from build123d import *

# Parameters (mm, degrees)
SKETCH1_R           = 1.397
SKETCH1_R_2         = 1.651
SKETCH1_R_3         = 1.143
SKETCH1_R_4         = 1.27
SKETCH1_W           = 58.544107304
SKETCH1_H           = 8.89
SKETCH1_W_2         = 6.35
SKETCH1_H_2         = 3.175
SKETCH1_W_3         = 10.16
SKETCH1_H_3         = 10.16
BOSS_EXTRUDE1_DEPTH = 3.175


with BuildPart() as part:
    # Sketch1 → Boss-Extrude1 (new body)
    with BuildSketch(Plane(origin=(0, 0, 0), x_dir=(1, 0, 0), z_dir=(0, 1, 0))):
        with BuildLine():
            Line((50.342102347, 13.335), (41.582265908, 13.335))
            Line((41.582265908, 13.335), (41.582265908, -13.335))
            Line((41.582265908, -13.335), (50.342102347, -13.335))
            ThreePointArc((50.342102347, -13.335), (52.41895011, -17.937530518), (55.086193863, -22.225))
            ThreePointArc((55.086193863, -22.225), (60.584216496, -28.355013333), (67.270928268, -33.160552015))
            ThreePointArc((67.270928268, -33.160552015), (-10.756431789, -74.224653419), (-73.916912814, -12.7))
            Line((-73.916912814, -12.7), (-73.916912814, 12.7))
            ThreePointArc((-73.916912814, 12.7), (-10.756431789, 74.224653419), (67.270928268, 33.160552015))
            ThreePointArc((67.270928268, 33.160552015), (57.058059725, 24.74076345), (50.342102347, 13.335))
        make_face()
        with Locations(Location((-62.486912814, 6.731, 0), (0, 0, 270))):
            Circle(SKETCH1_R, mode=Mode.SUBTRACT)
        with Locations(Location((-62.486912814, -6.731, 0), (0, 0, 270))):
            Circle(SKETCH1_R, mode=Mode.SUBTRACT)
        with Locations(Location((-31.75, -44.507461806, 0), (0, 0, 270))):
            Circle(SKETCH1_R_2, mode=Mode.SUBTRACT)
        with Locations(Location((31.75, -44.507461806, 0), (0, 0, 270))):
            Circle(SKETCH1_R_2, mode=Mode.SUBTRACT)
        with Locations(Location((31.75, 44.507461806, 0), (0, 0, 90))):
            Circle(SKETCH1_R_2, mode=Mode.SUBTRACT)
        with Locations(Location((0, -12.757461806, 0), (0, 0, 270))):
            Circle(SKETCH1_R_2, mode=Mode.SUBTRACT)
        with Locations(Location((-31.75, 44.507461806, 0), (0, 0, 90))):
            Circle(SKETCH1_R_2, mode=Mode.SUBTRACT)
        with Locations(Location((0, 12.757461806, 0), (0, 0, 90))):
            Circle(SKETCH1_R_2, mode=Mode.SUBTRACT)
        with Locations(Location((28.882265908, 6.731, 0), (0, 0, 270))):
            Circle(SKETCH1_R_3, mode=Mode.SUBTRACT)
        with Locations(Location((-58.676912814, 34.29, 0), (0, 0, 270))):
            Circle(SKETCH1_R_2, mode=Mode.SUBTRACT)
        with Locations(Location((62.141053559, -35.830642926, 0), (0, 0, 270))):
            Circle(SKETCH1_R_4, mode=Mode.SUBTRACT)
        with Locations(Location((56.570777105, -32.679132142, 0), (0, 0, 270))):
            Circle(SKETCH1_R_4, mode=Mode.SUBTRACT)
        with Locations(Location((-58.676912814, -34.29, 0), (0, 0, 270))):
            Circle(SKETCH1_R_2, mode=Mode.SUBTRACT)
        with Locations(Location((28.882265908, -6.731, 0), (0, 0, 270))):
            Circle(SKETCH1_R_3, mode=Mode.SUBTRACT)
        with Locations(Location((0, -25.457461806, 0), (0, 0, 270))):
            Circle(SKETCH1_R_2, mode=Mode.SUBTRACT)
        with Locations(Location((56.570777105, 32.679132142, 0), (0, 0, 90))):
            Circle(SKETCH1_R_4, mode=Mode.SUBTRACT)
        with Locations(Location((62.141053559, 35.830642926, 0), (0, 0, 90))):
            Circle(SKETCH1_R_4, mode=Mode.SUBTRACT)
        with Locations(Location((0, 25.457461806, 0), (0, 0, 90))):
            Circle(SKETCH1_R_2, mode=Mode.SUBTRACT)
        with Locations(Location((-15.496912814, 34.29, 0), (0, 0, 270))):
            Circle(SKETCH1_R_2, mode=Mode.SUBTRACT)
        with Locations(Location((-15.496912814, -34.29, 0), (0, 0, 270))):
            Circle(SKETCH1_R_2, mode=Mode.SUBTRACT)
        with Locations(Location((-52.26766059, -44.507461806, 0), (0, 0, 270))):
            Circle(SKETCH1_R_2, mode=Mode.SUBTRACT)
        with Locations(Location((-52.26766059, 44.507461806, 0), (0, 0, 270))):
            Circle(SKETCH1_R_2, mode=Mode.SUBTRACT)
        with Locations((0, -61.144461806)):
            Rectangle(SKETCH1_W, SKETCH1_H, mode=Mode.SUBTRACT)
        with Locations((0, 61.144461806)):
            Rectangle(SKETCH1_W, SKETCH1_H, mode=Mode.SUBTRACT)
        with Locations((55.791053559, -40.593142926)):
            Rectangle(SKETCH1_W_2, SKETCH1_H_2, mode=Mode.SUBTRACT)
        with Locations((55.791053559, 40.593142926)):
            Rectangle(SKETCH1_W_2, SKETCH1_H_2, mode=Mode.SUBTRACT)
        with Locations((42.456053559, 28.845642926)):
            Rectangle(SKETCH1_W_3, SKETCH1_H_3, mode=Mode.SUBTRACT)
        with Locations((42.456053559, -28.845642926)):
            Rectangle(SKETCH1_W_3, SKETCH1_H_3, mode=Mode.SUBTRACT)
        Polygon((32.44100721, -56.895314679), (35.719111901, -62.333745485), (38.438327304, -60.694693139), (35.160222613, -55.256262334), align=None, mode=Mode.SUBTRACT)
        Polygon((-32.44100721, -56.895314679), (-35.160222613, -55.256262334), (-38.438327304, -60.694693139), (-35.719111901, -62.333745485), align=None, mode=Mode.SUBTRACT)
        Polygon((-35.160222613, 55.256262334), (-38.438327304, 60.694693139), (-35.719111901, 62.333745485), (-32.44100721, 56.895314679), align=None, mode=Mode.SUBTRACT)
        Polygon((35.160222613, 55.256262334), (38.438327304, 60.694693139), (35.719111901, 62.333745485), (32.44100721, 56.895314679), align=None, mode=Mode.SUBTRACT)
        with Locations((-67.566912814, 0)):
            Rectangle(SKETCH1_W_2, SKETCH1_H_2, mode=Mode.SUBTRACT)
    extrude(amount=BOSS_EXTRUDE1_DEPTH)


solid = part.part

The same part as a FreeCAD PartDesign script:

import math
import FreeCAD as App
import Part
import Sketcher

V = App.Vector
Q = App.Units.Quantity


def add_polygon(sketch, points):
    """Adds a closed chain of lines whose ends are joined by coincident constraints."""
    first, n = sketch.GeometryCount, len(points)
    for a, b in zip(points, points[1:] + points[:1]):
        sketch.addGeometry(Part.LineSegment(App.Vector(*a, 0), App.Vector(*b, 0)), False)
    for i in range(n):
        sketch.addConstraint(Sketcher.Constraint("Coincident", first + i, 2, first + (i + 1) % n, 1))

doc = App.newDocument("Part")
body = doc.addObject("PartDesign::Body", "Body")

sketch1 = body.newObject("Sketcher::SketchObject", "Sketch")
sketch1.AttachmentSupport = (doc.getObject("XZ_Plane"), [""])
sketch1.MapMode = "FlatFace"
sketch1.addGeometry(Part.LineSegment(V(41.6, -13.3, 0), V(50.3, -13.3, 0)), False)
sketch1.addGeometry(Part.ArcOfCircle(Part.Circle(V(86, 0, 0), V(0, 0, 1), 38.1), math.radians(-160), math.radians(-119)), False)
sketch1.addGeometry(Part.ArcOfCircle(Part.Circle(V(0, 0, 0), V(0, 0, 1), 75), math.radians(-170), math.radians(-26)), False)
sketch1.addGeometry(Part.LineSegment(V(-73.9, -12.7, 0), V(-73.9, 12.7, 0)), False)
sketch1.addGeometry(Part.ArcOfCircle(Part.Circle(V(0, 0, 0), V(0, 0, 1), 75), math.radians(26), math.radians(170)), False)
sketch1.addGeometry(Part.ArcOfCircle(Part.Circle(V(86, 0, 0), V(0, 0, 1), 38.1), math.radians(119), math.radians(144)), False)
sketch1.addGeometry(Part.ArcOfCircle(Part.Circle(V(86, 0, 0), V(0, 0, 1), 38.1), math.radians(144.31), math.radians(159.51)), False)
sketch1.addGeometry(Part.LineSegment(V(50.3, 13.3, 0), V(41.6, 13.3, 0)), False)
sketch1.addGeometry(Part.LineSegment(V(41.6, 13.3, 0), V(41.6, -13.3, 0)), False)
add_polygon(sketch1, [(32.4, 56.9), (35.2, 55.3), (38.4, 60.7), (35.7, 62.3)])
add_polygon(sketch1, [(52.6, 42.2), (52.6, 39), (59, 39), (59, 42.2)])
sketch1.addGeometry(Part.Circle(V(62.1, 35.8, 0), V(0, 0, 1), 1.3), False)
sketch1.addGeometry(Part.Circle(V(31.8, 44.5, 0), V(0, 0, 1), 1.7), False)
add_polygon(sketch1, [(-29.3, 65.6), (-29.3, 56.7), (29.3, 56.7), (29.3, 65.6)])
sketch1.addGeometry(Part.Circle(V(56.6, 32.7, 0), V(0, 0, 1), 1.3), False)
add_polygon(sketch1, [(37.4, 33.9), (37.4, 23.8), (47.5, 23.8), (47.5, 33.9)])
sketch1.addGeometry(Part.Circle(V(0, 25.5, 0), V(0, 0, 1), 1.7), False)
sketch1.addGeometry(Part.Circle(V(28.9, 6.7, 0), V(0, 0, 1), 1.1), False)
sketch1.addGeometry(Part.Circle(V(0, 12.8, 0), V(0, 0, 1), 1.7), False)
add_polygon(sketch1, [(-32.4, 56.9), (-35.7, 62.3), (-38.4, 60.7), (-35.2, 55.3)])
sketch1.addGeometry(Part.Circle(V(-15.5, 34.3, 0), V(0, 0, 1), 1.7), False)
sketch1.addGeometry(Part.Circle(V(-31.8, 44.5, 0), V(0, 0, 1), 1.7), False)
sketch1.addGeometry(Part.Circle(V(-52.3, 44.5, 0), V(0, 0, 1), 1.7), False)
sketch1.addGeometry(Part.Circle(V(-58.7, 34.3, 0), V(0, 0, 1), 1.7), False)
sketch1.addGeometry(Part.Circle(V(-62.5, 6.7, 0), V(0, 0, 1), 1.4), False)
sketch1.addGeometry(Part.Circle(V(56.6, -32.7, 0), V(0, 0, 1), 1.3), False)
add_polygon(sketch1, [(37.4, -23.8), (37.4, -33.9), (47.5, -33.9), (47.5, -23.8)])
sketch1.addGeometry(Part.Circle(V(28.9, -6.7, 0), V(0, 0, 1), 1.1), False)
sketch1.addGeometry(Part.Circle(V(0, -12.8, 0), V(0, 0, 1), 1.7), False)
sketch1.addGeometry(Part.Circle(V(0, -25.5, 0), V(0, 0, 1), 1.7), False)
sketch1.addGeometry(Part.Circle(V(62.1, -35.8, 0), V(0, 0, 1), 1.3), False)
add_polygon(sketch1, [(52.6, -39), (52.6, -42.2), (59, -42.2), (59, -39)])
sketch1.addGeometry(Part.Circle(V(31.8, -44.5, 0), V(0, 0, 1), 1.7), False)
add_polygon(sketch1, [(35.2, -55.3), (32.4, -56.9), (35.7, -62.3), (38.4, -60.7)])
add_polygon(sketch1, [(-29.3, -56.7), (-29.3, -65.6), (29.3, -65.6), (29.3, -56.7)])
add_polygon(sketch1, [(-70.7, 1.6), (-70.7, -1.6), (-64.4, -1.6), (-64.4, 1.6)])
sketch1.addGeometry(Part.Circle(V(-62.5, -6.7, 0), V(0, 0, 1), 1.4), False)
sketch1.addGeometry(Part.Circle(V(-15.5, -34.3, 0), V(0, 0, 1), 1.7), False)
sketch1.addGeometry(Part.Circle(V(-31.8, -44.5, 0), V(0, 0, 1), 1.7), False)
add_polygon(sketch1, [(-35.2, -55.3), (-38.4, -60.7), (-35.7, -62.3), (-32.4, -56.9)])
sketch1.addGeometry(Part.Circle(V(-52.3, -44.5, 0), V(0, 0, 1), 1.7), False)
sketch1.addGeometry(Part.Circle(V(-58.7, -34.3, 0), V(0, 0, 1), 1.7), False)
sketch1.addConstraint([
    Sketcher.Constraint("Coincident", 0, 2, 1, 1),
    Sketcher.Constraint("Coincident", 1, 2, 2, 2),
    Sketcher.Constraint("Coincident", 2, 1, 3, 1),
    Sketcher.Constraint("Coincident", 3, 2, 4, 2),
    Sketcher.Constraint("Coincident", 4, 1, 5, 1),
    Sketcher.Constraint("Tangent", 5, 2, 6, 1),
    Sketcher.Constraint("Coincident", 6, 2, 7, 1),
    Sketcher.Constraint("Coincident", 7, 2, 8, 1),
    Sketcher.Constraint("Coincident", 8, 2, 0, 1),
    Sketcher.Constraint("Horizontal", 0),
    Sketcher.Constraint("Vertical", 3),
    Sketcher.Constraint("Horizontal", 7),
    Sketcher.Constraint("Vertical", 8),
    Sketcher.Constraint("Vertical", 13),
    Sketcher.Constraint("Horizontal", 14),
    Sketcher.Constraint("Vertical", 15),
    Sketcher.Constraint("Horizontal", 16),
    Sketcher.Constraint("Vertical", 19),
    Sketcher.Constraint("Horizontal", 20),
    Sketcher.Constraint("Vertical", 21),
    Sketcher.Constraint("Horizontal", 22),
    Sketcher.Constraint("Vertical", 24),
    Sketcher.Constraint("Horizontal", 25),
    Sketcher.Constraint("Vertical", 26),
    Sketcher.Constraint("Horizontal", 27),
    Sketcher.Constraint("Vertical", 41),
    Sketcher.Constraint("Horizontal", 42),
    Sketcher.Constraint("Vertical", 43),
    Sketcher.Constraint("Horizontal", 44),
    Sketcher.Constraint("Vertical", 49),
    Sketcher.Constraint("Horizontal", 50),
    Sketcher.Constraint("Vertical", 51),
    Sketcher.Constraint("Horizontal", 52),
    Sketcher.Constraint("Vertical", 58),
    Sketcher.Constraint("Horizontal", 59),
    Sketcher.Constraint("Vertical", 60),
    Sketcher.Constraint("Horizontal", 61),
    Sketcher.Constraint("Vertical", 62),
    Sketcher.Constraint("Horizontal", 63),
    Sketcher.Constraint("Vertical", 64),
    Sketcher.Constraint("Horizontal", 65),
    Sketcher.Constraint("Coincident", 2, 3, -1, 1),
    Sketcher.Constraint("Coincident", 4, 3, -1, 1),
    Sketcher.Constraint("Coincident", 5, 3, 1, 3),
    Sketcher.Constraint("Equal", 2, 4),
    Sketcher.Constraint("Equal", 1, 5),
    Sketcher.Constraint("Equal", 5, 6),
    Sketcher.Constraint("Equal", 17, 23),
    Sketcher.Constraint("Equal", 18, 28),
    Sketcher.Constraint("Equal", 28, 30),
    Sketcher.Constraint("Equal", 30, 35),
    Sketcher.Constraint("Equal", 35, 36),
    Sketcher.Constraint("Equal", 36, 37),
    Sketcher.Constraint("Equal", 37, 38),
    Sketcher.Constraint("Equal", 23, 40),
    Sketcher.Constraint("Equal", 29, 45),
    Sketcher.Constraint("Equal", 38, 46),
    Sketcher.Constraint("Equal", 46, 47),
    Sketcher.Constraint("Equal", 40, 48),
    Sketcher.Constraint("Equal", 47, 53),
    Sketcher.Constraint("Equal", 39, 66),
    Sketcher.Constraint("Equal", 53, 67),
    Sketcher.Constraint("Equal", 67, 68),
    Sketcher.Constraint("Equal", 68, 73),
    Sketcher.Constraint("Equal", 73, 74),
    Sketcher.Constraint("Symmetric", 30, 3, 46, 3, -1, 1),
    Sketcher.Constraint("Symmetric", 28, 3, 47, 3, -1, 1),
    Sketcher.Constraint("Symmetric", 36, 3, 53, 3, -1, 1),
    Sketcher.Constraint("Symmetric", 18, 3, 68, 3, -1, 1),
    Sketcher.Constraint("Symmetric", 34, 2, 54, 2, -1, 1),
    Sketcher.Constraint("Symmetric", 31, 2, 55, 2, -1, 1),
    Sketcher.Constraint("Symmetric", 32, 2, 56, 2, -1, 1),
    Sketcher.Constraint("Symmetric", 33, 2, 57, 2, -1, 1),
    Sketcher.Constraint("Symmetric", 21, 2, 58, 2, -1, 1),
    Sketcher.Constraint("Symmetric", 19, 2, 60, 2, -1, 1),
    Sketcher.Constraint("Symmetric", 10, 2, 69, 2, -1, 1),
    Sketcher.Constraint("Symmetric", 11, 2, 70, 2, -1, 1),
    Sketcher.Constraint("Symmetric", 12, 2, 71, 2, -1, 1),
    Sketcher.Constraint("Symmetric", 9, 2, 72, 2, -1, 1),
    Sketcher.Constraint("Symmetric", 18, 3, 36, 3, -2),
    Sketcher.Constraint("Symmetric", 11, 2, 31, 2, -2),
    Sketcher.Constraint("Symmetric", 10, 2, 32, 2, -2),
    Sketcher.Constraint("Symmetric", 9, 2, 33, 2, -2),
    Sketcher.Constraint("Symmetric", 12, 2, 34, 2, -2),
    Sketcher.Constraint("Symmetric", 23, 3, 40, 3, -1),
    Sketcher.Constraint("Symmetric", 29, 3, 45, 3, -1),
    Sketcher.Constraint("Symmetric", 17, 3, 48, 3, -1),
    Sketcher.Constraint("Symmetric", 39, 3, 66, 3, -1),
    Sketcher.Constraint("Symmetric", 35, 3, 67, 3, -1),
    Sketcher.Constraint("Symmetric", 37, 3, 73, 3, -1),
    Sketcher.Constraint("Symmetric", 38, 3, 74, 3, -1),
    Sketcher.Constraint("Symmetric", 0, 2, 6, 2, -1),
    Sketcher.Constraint("Symmetric", 27, 2, 41, 2, -1),
    Sketcher.Constraint("Symmetric", 25, 2, 43, 2, -1),
    Sketcher.Constraint("Symmetric", 16, 2, 49, 2, -1),
    Sketcher.Constraint("Symmetric", 14, 2, 51, 2, -1),
    Sketcher.Constraint("PointOnObject", 28, 3, -2),
    Sketcher.Constraint("PointOnObject", 30, 3, -2),
    Sketcher.Constraint("Perpendicular", 9, 10),
    Sketcher.Constraint("Perpendicular", 10, 11),
    Sketcher.Constraint("Perpendicular", 11, 12),
    Sketcher.Constraint("Horizontal", 36, 3, 37, 3),
    Sketcher.Constraint("Horizontal", 35, 3, 38, 3),
    Sketcher.Constraint("Horizontal", 29, 3, 39, 3),
    Sketcher.Constraint("Vertical", 22, 2, 58, 2),
    Sketcher.Constraint("Equal", 52, 63),
    Sketcher.Constraint("Equal", 44, 24),
    Sketcher.Constraint("Equal", 51, 62),
    Sketcher.Constraint("Diameter", 17, Q("0.1 in")),
    Sketcher.Constraint("Radius", 1, Q("1.5 in")),
    Sketcher.Constraint("Diameter", 18, Q("0.13 in")),
    Sketcher.Constraint("Diameter", 29, Q("0.09 in")),
    Sketcher.Constraint("Diameter", 39, Q("0.11 in")),
    Sketcher.Constraint("DistanceY", 3, 1, 3, 2, Q("1 in")),
    Sketcher.Constraint("DistanceX", 25, 1, 25, 2, Q("0.4 in")),
    Sketcher.Constraint("DistanceX", 14, 1, 14, 2, Q("0.25 in")),
    Sketcher.Constraint("DistanceY", 8, 2, 8, 1, Q("1.05 in")),
    Sketcher.Constraint("DistanceY", 19, 2, 19, 1, Q("0.35 in")),
    Sketcher.Constraint("Distance", 10, Q("0.25 in")),
    Sketcher.Constraint("DistanceY", 13, 2, 13, 1, Q("0.125 in")),
    Sketcher.Constraint("DistanceX", -1, 1, 18, 3, Q("1.25 in")),
    Sketcher.Constraint("DistanceY", -1, 1, 35, 3, Q("1.35 in")),
    Sketcher.Constraint("Radius", 2, Q("75 mm")),
    Sketcher.Constraint("Distance", 9, Q("0.125 in")),
    Sketcher.Constraint("DistanceY", -1, 1, 29, 3, Q("0.265 in")),
    Sketcher.Constraint("DistanceY", -1, 1, 5, 2, Q("0.875 in")),
    Sketcher.Constraint("DistanceY", 62, 2, -1, 1, Q("0.0625 in")),
    Sketcher.Constraint("DistanceX", 0, 1, 0, 2, Q("8.759836 mm")),
    Sketcher.Constraint("DistanceX", 20, 1, 20, 2, Q("58.544107 mm")),
    Sketcher.Constraint("DistanceY", -1, 1, 18, 3, Q("44.507462 mm")),
    Sketcher.Constraint("DistanceY", -1, 1, 28, 3, Q("25.457462 mm")),
    Sketcher.Constraint("DistanceY", -1, 1, 30, 3, Q("12.757462 mm")),
    Sketcher.Constraint("DistanceX", 37, 3, -1, 1, Q("52.267661 mm")),
    Sketcher.Constraint("DistanceX", -1, 1, 1, 2, Q("67.270928 mm")),
    Sketcher.Constraint("DistanceX", -1, 1, 11, 2, Q("35.719112 mm")),
    Sketcher.Constraint("DistanceY", -1, 1, 19, 2, Q("56.699462 mm")),
    Sketcher.Constraint("DistanceX", -1, 1, 17, 3, Q("62.141054 mm")),
    Sketcher.Constraint("DistanceY", -1, 1, 17, 3, Q("35.830643 mm")),
    Sketcher.Constraint("DistanceX", -1, 1, 23, 3, Q("56.570777 mm")),
    Sketcher.Constraint("DistanceY", -1, 1, 23, 3, Q("32.679132 mm")),
    Sketcher.Constraint("DistanceX", -1, 1, 29, 3, Q("28.882266 mm")),
    Sketcher.Constraint("DistanceX", 35, 3, -1, 1, Q("15.496913 mm")),
    Sketcher.Constraint("DistanceX", 38, 3, -1, 1, Q("58.676913 mm")),
    Sketcher.Constraint("DistanceX", 39, 3, -1, 1, Q("62.486913 mm")),
    Sketcher.Constraint("DistanceX", -1, 1, 9, 2, Q("35.160223 mm")),
    Sketcher.Constraint("DistanceY", -1, 1, 9, 2, Q("55.256262 mm")),
    Sketcher.Constraint("DistanceX", -1, 1, 13, 2, Q("52.616054 mm")),
    Sketcher.Constraint("DistanceY", -1, 1, 13, 2, Q("39.005643 mm")),
    Sketcher.Constraint("DistanceX", -1, 1, 24, 2, Q("37.376054 mm")),
    Sketcher.Constraint("DistanceY", -1, 1, 24, 2, Q("23.765643 mm")),
    Sketcher.Constraint("DistanceX", 62, 2, -1, 1, Q("70.741913 mm")),
])
pad1 = body.newObject("PartDesign::Pad", "Pad")
pad1.Profile = sketch1
pad1.Length = Q("0.125 in")
pad1.Reversed = True

doc.recompute()
